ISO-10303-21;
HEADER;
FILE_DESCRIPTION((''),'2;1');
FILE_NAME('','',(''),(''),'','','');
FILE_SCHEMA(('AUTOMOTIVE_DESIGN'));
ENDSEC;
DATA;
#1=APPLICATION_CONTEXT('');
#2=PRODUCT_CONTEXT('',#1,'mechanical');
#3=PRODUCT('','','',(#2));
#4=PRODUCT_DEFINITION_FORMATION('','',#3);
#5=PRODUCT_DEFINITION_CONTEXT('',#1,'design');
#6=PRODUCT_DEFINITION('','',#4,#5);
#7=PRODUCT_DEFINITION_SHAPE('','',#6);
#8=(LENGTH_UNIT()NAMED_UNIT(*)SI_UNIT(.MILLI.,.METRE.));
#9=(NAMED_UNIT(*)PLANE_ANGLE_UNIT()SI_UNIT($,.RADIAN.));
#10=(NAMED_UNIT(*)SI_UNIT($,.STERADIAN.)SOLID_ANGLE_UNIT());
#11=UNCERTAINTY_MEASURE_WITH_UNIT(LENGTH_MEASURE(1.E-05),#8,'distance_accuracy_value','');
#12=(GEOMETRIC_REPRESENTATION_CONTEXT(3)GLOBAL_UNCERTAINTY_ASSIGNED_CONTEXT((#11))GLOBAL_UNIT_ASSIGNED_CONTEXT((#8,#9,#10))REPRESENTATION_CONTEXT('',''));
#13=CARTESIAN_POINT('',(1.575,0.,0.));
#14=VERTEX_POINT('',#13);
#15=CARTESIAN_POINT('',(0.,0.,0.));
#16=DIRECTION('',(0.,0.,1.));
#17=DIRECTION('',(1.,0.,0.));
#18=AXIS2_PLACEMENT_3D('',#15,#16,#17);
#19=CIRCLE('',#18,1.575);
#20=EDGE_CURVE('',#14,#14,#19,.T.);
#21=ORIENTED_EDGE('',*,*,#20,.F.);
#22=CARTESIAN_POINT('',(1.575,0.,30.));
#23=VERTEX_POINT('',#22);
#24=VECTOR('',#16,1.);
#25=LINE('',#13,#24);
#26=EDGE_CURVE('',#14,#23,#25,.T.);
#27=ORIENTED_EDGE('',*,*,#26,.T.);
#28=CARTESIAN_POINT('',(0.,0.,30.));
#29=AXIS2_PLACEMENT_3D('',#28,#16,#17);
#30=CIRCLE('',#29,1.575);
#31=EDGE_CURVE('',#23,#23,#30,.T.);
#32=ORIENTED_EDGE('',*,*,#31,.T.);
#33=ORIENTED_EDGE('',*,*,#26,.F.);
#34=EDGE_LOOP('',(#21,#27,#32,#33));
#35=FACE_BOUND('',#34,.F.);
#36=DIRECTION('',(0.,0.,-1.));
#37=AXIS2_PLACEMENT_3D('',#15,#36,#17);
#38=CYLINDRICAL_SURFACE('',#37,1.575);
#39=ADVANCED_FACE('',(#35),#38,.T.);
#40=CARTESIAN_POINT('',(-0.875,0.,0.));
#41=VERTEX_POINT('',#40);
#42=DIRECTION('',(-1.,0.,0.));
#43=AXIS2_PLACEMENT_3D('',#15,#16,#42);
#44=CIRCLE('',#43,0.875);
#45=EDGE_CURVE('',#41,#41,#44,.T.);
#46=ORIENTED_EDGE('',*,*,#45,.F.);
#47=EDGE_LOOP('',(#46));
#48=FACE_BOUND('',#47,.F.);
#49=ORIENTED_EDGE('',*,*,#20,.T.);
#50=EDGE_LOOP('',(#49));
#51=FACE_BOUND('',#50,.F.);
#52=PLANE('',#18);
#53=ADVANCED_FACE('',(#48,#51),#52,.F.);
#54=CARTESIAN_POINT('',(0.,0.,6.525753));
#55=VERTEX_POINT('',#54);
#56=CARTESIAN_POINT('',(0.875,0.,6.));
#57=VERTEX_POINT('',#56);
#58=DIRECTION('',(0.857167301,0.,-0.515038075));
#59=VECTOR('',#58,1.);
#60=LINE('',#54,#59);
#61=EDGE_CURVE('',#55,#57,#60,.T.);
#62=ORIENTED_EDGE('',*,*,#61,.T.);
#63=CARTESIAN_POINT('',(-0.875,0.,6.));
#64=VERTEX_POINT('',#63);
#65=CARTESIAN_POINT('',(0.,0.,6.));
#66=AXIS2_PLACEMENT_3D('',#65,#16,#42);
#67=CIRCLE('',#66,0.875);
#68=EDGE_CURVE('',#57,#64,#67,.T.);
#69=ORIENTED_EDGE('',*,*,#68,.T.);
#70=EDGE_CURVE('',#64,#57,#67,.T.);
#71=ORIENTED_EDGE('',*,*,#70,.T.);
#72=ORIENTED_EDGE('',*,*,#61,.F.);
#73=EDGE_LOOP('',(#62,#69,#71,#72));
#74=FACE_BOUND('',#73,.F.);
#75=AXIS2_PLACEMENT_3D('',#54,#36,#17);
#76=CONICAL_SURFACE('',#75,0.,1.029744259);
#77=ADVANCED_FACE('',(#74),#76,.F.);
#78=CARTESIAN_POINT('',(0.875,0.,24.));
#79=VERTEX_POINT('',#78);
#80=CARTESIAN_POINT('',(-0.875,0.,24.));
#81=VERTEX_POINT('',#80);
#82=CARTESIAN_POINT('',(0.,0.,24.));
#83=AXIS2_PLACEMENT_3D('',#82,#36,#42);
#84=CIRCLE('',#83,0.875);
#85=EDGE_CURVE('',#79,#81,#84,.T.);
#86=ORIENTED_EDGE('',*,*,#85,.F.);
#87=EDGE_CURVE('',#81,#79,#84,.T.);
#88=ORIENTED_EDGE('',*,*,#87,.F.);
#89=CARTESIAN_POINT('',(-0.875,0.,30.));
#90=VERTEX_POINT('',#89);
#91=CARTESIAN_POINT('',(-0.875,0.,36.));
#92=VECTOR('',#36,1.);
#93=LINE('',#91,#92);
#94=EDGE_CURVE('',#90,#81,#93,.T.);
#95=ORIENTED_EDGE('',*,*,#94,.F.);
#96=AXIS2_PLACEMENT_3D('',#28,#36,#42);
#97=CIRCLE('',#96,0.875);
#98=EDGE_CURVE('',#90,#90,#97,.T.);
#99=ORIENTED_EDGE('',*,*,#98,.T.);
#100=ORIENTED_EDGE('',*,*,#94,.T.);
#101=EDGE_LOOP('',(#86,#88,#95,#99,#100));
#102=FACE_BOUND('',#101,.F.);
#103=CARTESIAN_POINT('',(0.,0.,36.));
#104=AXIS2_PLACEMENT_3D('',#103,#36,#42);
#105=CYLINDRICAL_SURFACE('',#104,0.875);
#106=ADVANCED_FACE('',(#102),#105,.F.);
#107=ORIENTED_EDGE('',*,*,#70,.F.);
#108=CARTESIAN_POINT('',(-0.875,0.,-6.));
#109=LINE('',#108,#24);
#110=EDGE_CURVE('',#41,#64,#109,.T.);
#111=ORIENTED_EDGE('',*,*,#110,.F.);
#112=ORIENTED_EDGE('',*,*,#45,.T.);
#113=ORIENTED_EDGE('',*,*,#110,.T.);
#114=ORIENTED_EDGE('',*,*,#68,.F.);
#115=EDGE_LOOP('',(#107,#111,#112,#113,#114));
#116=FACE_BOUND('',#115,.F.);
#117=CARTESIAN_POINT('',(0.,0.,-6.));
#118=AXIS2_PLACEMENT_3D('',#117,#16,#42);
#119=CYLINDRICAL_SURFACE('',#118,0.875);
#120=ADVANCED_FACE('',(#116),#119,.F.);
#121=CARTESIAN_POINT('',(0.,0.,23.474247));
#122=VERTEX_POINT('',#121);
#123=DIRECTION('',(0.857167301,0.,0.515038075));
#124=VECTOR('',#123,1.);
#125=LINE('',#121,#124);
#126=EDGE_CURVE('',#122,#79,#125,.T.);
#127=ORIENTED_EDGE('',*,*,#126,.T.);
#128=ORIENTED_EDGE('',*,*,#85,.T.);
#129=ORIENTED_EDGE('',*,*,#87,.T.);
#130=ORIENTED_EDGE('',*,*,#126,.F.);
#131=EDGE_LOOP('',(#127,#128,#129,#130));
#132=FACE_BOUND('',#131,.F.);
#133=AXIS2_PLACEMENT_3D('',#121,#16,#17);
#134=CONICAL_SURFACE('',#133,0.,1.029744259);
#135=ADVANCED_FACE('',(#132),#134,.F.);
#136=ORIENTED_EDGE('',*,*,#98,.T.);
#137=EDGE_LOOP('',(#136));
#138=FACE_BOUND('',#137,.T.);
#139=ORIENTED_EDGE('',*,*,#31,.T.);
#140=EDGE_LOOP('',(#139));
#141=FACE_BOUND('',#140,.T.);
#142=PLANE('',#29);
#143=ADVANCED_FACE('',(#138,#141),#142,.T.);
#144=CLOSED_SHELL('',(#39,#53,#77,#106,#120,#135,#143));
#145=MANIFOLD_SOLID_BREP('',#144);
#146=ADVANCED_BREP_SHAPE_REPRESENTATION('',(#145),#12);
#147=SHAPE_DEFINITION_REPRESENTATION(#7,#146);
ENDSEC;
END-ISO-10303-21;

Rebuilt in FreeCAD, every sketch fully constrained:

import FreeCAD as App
import Part
import Sketcher
from FreeCAD import Vector

doc = App.newDocument("Part")
params = doc.addObject("Spreadsheet::Sheet", "Params")
for row, (alias, value) in enumerate([
    ("sketch1_diameter", "3.15 mm"),
    ("pad1_length", "30 mm"),
    ("sketch2_diameter", "1.75 mm"),
    ("hole_diameter", "1.75 mm"),
    ("hole_depth", "6 mm"),
    ("sketch3_diameter", "1.75 mm"),
    ("hole2_diameter", "1.75 mm"),
    ("hole2_depth", "6 mm"),
], start=1):
    params.set(f"A{row}", alias)
    params.set(f"B{row}", "=" + value)
    params.setAlias(f"B{row}", alias)

body = doc.addObject("PartDesign::Body", "Body")

# Sketch on XY plane
sketch1 = body.newObject("Sketcher::SketchObject", "Sketch")
sketch1.AttachmentSupport = (doc.getObject("XY_Plane"), [""])
sketch1.MapMode = "FlatFace"
sketch1.addGeometry(Part.Circle(Vector(0, 0, 0), Vector(0, 0, 1), 1.575), False)
sketch1.addConstraint([
    Sketcher.Constraint("Coincident", 0, 3, -1, 1),
    Sketcher.Constraint("Diameter", 0, 3.15),
])
sketch1.setExpression("Constraints[1]", "Params.sketch1_diameter")
pad1 = body.newObject("PartDesign::Pad", "Pad")
pad1.Profile = sketch1
pad1.setExpression("Length", "Params.pad1_length")

# Sketch on XY plane
sketch2 = body.newObject("Sketcher::SketchObject", "Sketch001")
sketch2.AttachmentSupport = (doc.getObject("XY_Plane"), [""])
sketch2.MapMode = "FlatFace"
sketch2.AttachmentOffset = App.Placement(Vector(0, 0, 30), App.Rotation())
sketch2.addGeometry(Part.Circle(Vector(0, 0, 0), Vector(0, 0, 1), 0.875), False)
sketch2.addConstraint([
    Sketcher.Constraint("Coincident", 0, 3, -1, 1),
    Sketcher.Constraint("Diameter", 0, 1.75),
])
sketch2.setExpression("Constraints[1]", "Params.sketch2_diameter")
doc.recompute()
hole = body.newObject("PartDesign::Hole", "Hole")
hole.Profile = sketch2
hole.ThreadType = "None"
hole.setExpression("Diameter", "Params.hole_diameter")
hole.DepthType = "Dimension"
hole.setExpression("Depth", "Params.hole_depth")
hole.DrillPoint = "Angled"
hole.DrillPointAngle = 118

# Sketch on XY plane
sketch3 = body.newObject("Sketcher::SketchObject", "Sketch002")
sketch3.AttachmentSupport = (doc.getObject("XY_Plane"), [""])
sketch3.MapMode = "FlatFace"
sketch3.addGeometry(Part.Circle(Vector(0, 0, 0), Vector(0, 0, 1), 0.875), False)
sketch3.addConstraint([
    Sketcher.Constraint("Coincident", 0, 3, -1, 1),
    Sketcher.Constraint("Diameter", 0, 1.75),
])
sketch3.setExpression("Constraints[1]", "Params.sketch3_diameter")
doc.recompute()
hole2 = body.newObject("PartDesign::Hole", "Hole001")
hole2.Profile = sketch3
hole2.ThreadType = "None"
hole2.setExpression("Diameter", "Params.hole2_diameter")
hole2.DepthType = "Dimension"
hole2.setExpression("Depth", "Params.hole2_depth")
hole2.DrillPoint = "Angled"
hole2.DrillPointAngle = 118
hole2.Reversed = True

doc.recompute()
